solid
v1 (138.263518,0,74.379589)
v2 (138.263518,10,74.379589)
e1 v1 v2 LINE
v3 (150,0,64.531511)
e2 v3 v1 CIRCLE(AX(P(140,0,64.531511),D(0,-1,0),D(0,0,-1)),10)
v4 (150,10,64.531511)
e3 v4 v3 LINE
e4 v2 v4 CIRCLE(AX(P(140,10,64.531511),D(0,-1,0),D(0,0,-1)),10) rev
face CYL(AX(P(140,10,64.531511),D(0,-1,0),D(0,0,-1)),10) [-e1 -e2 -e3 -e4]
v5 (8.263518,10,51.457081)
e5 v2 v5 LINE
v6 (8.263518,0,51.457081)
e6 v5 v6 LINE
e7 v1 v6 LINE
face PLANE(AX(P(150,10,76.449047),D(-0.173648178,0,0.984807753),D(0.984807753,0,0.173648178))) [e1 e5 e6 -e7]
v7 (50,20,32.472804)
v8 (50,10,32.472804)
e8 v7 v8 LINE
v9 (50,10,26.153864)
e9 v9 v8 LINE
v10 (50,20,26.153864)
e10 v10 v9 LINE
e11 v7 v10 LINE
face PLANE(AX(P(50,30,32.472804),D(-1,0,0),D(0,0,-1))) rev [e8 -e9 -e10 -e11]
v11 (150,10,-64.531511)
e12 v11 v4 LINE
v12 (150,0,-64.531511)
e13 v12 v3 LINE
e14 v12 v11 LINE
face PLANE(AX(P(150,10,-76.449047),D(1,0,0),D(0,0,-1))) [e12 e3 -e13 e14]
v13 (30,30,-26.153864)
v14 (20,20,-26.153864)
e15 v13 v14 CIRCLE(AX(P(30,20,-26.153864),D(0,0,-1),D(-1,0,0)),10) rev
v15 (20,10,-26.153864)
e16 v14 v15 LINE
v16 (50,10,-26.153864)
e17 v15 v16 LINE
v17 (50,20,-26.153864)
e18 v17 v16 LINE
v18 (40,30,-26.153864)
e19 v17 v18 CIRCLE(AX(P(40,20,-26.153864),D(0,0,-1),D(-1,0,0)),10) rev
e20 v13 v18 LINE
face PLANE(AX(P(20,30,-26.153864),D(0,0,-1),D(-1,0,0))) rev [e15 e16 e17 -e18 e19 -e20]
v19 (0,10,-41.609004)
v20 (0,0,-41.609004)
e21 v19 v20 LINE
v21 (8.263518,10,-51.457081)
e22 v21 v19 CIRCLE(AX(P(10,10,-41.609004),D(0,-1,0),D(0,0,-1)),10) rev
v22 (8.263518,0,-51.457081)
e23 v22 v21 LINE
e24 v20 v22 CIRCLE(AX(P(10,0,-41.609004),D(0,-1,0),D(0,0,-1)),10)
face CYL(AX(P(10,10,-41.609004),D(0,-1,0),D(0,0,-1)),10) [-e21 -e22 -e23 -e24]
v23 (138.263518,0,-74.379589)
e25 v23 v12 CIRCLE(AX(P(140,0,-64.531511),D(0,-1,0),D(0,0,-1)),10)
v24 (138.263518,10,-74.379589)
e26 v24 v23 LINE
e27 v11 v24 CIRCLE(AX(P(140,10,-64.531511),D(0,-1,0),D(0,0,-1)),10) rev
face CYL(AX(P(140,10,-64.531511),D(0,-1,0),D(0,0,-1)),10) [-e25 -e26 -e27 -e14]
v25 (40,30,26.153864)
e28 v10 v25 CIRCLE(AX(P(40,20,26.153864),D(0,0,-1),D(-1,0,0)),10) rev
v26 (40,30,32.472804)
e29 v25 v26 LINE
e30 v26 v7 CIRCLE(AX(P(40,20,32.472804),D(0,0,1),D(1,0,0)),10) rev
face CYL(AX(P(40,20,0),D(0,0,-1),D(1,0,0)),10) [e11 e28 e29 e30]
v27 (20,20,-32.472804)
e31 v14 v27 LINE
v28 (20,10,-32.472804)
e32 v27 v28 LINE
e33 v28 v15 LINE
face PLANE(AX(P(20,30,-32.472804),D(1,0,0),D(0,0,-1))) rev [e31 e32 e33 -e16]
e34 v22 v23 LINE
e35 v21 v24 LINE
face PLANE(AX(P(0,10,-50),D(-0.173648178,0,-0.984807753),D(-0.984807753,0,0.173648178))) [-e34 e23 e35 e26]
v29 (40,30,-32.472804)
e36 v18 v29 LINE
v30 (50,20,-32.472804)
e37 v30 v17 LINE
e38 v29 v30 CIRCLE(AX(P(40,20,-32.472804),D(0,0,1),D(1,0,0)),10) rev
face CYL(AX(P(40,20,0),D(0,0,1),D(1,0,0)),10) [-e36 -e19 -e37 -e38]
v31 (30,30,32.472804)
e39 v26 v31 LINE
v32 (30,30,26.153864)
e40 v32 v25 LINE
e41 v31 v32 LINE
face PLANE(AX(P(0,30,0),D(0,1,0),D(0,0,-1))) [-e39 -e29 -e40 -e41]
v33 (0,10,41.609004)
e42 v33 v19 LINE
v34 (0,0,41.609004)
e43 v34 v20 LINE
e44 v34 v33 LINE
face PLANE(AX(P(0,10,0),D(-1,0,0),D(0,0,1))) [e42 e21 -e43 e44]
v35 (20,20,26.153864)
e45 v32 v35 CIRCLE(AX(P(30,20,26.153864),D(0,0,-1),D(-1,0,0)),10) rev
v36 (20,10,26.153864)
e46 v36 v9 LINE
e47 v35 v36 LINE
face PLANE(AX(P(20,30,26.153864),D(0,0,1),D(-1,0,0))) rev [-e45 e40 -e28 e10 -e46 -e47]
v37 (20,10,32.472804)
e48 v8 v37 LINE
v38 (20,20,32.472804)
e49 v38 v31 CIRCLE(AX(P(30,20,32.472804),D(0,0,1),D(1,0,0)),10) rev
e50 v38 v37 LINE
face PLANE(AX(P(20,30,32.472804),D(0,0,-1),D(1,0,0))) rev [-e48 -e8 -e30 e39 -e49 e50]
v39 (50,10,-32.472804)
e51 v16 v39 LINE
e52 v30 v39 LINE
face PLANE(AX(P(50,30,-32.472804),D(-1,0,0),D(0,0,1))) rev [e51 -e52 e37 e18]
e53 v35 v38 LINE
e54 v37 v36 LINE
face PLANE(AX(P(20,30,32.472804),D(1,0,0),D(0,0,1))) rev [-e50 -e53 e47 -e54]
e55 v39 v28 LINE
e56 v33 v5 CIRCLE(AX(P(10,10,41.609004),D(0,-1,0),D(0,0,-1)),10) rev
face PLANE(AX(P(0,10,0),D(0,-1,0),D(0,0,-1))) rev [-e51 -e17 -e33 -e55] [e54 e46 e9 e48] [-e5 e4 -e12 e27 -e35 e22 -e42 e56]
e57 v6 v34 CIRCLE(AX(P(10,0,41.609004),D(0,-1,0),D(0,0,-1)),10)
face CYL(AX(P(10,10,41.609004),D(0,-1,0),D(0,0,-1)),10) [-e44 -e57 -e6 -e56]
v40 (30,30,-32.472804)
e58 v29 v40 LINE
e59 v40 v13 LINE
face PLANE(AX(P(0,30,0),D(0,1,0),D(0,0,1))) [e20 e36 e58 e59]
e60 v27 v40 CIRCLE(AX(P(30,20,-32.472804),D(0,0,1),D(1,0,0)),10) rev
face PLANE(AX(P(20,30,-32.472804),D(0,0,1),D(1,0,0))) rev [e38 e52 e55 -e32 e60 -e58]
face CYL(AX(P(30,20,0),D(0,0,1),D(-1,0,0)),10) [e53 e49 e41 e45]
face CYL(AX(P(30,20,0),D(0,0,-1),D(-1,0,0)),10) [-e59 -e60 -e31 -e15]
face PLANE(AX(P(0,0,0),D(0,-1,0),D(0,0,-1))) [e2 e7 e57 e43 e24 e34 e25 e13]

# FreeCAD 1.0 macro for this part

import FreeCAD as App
import Part
import Sketcher
Q = App.Units.Quantity


def edges_at(feature, points):
    """Names of the edges that pass closest to the given points."""
    edges = feature.Shape.Edges
    near = lambda p: min(range(len(edges)), key=lambda i: edges[i].distToShape(Part.Vertex(*p))[0])
    return sorted({f"Edge{near(p) + 1}" for p in points})


def add_polygon(sketch, points):
    """Adds a closed chain of lines whose ends are joined by coincident constraints."""
    first, n = sketch.GeometryCount, len(points)
    for a, b in zip(points, points[1:] + points[:1]):
        sketch.addGeometry(Part.LineSegment(App.Vector(*a, 0), App.Vector(*b, 0)), False)
    for i in range(n):
        sketch.addConstraint(Sketcher.Constraint("Coincident", first + i, 2, first + (i + 1) % n, 1))

doc = App.newDocument("Part")
params = doc.addObject("Spreadsheet::Sheet", "Params")
for row, (alias, value) in enumerate([
    ("sketch1_height", "100 mm"),
    ("pad1_length", "10 mm"),
    ("sketch2_width", "30 mm"),
    ("pad2_length", "20 mm"),
    ("fillet_radius", "10 mm"),
    ("fillet2_radius", "10 mm"),
], start=1):
    params.set(f"A{row}", alias)
    params.set(f"B{row}", "=" + value)
    params.setAlias(f"B{row}", alias)

body = doc.addObject("PartDesign::Body", "Body")

# Sketch on XZ plane
sketch1 = doc.addObject("Sketcher::SketchObject", "Sketch")
body.addObject(sketch1)
sketch1.AttachmentSupport = (doc.XZ_Plane, [""])
sketch1.MapMode = "FlatFace"
add_polygon(sketch1, [(0, -50), (0, 50), (150, 76), (150, -76)])  # lines 0-3
sketch1.addConstraint([
    Sketcher.Constraint("Vertical", 0),
    Sketcher.Constraint("Vertical", 2),
    Sketcher.Constraint("Symmetric", 0, 2, 3, 2, -1, 1),
    Sketcher.Constraint("Equal", 1, 3),
    Sketcher.Constraint("DistanceY", 0, 1, 0, 2, Q("100 mm")),
    Sketcher.Constraint("Angle", 1, Q("10 deg")),
    Sketcher.Constraint("DistanceX", -1, 1, 1, 2, Q("150 mm")),
])
sketch1.setExpression("Constraints[8]", "Params.sketch1_height")
pad1 = doc.addObject("PartDesign::Pad", "Pad")
body.addObject(pad1)
pad1.Profile = sketch1
pad1.setExpression("Length", "Params.pad1_length")
pad1.Reversed = True

# Sketch on XZ plane
sketch2 = doc.addObject("Sketcher::SketchObject", "Sketch001")
body.addObject(sketch2)
sketch2.AttachmentSupport = (doc.XZ_Plane, [""])
sketch2.MapMode = "FlatFace"
sketch2.AttachmentOffset = App.Placement(App.Vector(0, 0, -10), App.Rotation())
add_polygon(sketch2, [(20, -32), (20, -26), (50, -26), (50, -32)])  # lines 0-3
sketch2.addConstraint([
    Sketcher.Constraint("Vertical", 0),
    Sketcher.Constraint("Horizontal", 1),
    Sketcher.Constraint("Vertical", 2),
    Sketcher.Constraint("Horizontal", 3),
    Sketcher.Constraint("DistanceX", 1, 1, 1, 2, Q("30 mm")),
    Sketcher.Constraint("DistanceX", -1, 1, 0, 2, Q("20 mm")),
    Sketcher.Constraint("DistanceY", 0, 1, 0, 2, Q("6.318939 mm")),
    Sketcher.Constraint("DistanceY", 0, 2, -1, 1, Q("26.153864 mm")),
])
sketch2.setExpression("Constraints[8]", "Params.sketch2_width")
pad2 = doc.addObject("PartDesign::Pad", "Pad001")
body.addObject(pad2)
pad2.Profile = sketch2
pad2.setExpression("Length", "Params.pad2_length")
pad2.Reversed = True
doc.recompute()

fillet = doc.addObject("PartDesign::Fillet", "Fillet")
body.addObject(fillet)
fillet.Base = (pad2, edges_at(pad2, [(20, 30, -29.313), (50, 30, -29.313)]))
fillet.setExpression("Radius", "Params.fillet_radius")
body2 = doc.addObject("PartDesign::Body", "Body001")
doc.recompute()

body2.BaseFeature = body
doc.recompute()

mirroring = doc.addObject("Part::Mirroring", "Mirroring")
mirroring.Source = body
mirroring.Base = App.Vector(0, 0, 0)
mirroring.Normal = App.Vector(0, 0, 1)
body3 = doc.addObject("PartDesign::Body", "Body002")
body3.BaseFeature = mirroring
boolean = doc.addObject("PartDesign::Boolean", "Boolean")
body2.addObject(boolean)
boolean.Type = "Fuse"
boolean.addObjects([body3])
doc.recompute()

fillet2 = doc.addObject("PartDesign::Fillet", "Fillet001")
body2.addObject(fillet2)
fillet2.Base = (boolean, edges_at(boolean, [
    (150, 5, 76.449),
    (150, 5, -76.449),
    (0, 5, -50),
    (0, 5, 50),
]))
fillet2.setExpression("Radius", "Params.fillet2_radius")
mirroring.Visibility = False

doc.recompute()
